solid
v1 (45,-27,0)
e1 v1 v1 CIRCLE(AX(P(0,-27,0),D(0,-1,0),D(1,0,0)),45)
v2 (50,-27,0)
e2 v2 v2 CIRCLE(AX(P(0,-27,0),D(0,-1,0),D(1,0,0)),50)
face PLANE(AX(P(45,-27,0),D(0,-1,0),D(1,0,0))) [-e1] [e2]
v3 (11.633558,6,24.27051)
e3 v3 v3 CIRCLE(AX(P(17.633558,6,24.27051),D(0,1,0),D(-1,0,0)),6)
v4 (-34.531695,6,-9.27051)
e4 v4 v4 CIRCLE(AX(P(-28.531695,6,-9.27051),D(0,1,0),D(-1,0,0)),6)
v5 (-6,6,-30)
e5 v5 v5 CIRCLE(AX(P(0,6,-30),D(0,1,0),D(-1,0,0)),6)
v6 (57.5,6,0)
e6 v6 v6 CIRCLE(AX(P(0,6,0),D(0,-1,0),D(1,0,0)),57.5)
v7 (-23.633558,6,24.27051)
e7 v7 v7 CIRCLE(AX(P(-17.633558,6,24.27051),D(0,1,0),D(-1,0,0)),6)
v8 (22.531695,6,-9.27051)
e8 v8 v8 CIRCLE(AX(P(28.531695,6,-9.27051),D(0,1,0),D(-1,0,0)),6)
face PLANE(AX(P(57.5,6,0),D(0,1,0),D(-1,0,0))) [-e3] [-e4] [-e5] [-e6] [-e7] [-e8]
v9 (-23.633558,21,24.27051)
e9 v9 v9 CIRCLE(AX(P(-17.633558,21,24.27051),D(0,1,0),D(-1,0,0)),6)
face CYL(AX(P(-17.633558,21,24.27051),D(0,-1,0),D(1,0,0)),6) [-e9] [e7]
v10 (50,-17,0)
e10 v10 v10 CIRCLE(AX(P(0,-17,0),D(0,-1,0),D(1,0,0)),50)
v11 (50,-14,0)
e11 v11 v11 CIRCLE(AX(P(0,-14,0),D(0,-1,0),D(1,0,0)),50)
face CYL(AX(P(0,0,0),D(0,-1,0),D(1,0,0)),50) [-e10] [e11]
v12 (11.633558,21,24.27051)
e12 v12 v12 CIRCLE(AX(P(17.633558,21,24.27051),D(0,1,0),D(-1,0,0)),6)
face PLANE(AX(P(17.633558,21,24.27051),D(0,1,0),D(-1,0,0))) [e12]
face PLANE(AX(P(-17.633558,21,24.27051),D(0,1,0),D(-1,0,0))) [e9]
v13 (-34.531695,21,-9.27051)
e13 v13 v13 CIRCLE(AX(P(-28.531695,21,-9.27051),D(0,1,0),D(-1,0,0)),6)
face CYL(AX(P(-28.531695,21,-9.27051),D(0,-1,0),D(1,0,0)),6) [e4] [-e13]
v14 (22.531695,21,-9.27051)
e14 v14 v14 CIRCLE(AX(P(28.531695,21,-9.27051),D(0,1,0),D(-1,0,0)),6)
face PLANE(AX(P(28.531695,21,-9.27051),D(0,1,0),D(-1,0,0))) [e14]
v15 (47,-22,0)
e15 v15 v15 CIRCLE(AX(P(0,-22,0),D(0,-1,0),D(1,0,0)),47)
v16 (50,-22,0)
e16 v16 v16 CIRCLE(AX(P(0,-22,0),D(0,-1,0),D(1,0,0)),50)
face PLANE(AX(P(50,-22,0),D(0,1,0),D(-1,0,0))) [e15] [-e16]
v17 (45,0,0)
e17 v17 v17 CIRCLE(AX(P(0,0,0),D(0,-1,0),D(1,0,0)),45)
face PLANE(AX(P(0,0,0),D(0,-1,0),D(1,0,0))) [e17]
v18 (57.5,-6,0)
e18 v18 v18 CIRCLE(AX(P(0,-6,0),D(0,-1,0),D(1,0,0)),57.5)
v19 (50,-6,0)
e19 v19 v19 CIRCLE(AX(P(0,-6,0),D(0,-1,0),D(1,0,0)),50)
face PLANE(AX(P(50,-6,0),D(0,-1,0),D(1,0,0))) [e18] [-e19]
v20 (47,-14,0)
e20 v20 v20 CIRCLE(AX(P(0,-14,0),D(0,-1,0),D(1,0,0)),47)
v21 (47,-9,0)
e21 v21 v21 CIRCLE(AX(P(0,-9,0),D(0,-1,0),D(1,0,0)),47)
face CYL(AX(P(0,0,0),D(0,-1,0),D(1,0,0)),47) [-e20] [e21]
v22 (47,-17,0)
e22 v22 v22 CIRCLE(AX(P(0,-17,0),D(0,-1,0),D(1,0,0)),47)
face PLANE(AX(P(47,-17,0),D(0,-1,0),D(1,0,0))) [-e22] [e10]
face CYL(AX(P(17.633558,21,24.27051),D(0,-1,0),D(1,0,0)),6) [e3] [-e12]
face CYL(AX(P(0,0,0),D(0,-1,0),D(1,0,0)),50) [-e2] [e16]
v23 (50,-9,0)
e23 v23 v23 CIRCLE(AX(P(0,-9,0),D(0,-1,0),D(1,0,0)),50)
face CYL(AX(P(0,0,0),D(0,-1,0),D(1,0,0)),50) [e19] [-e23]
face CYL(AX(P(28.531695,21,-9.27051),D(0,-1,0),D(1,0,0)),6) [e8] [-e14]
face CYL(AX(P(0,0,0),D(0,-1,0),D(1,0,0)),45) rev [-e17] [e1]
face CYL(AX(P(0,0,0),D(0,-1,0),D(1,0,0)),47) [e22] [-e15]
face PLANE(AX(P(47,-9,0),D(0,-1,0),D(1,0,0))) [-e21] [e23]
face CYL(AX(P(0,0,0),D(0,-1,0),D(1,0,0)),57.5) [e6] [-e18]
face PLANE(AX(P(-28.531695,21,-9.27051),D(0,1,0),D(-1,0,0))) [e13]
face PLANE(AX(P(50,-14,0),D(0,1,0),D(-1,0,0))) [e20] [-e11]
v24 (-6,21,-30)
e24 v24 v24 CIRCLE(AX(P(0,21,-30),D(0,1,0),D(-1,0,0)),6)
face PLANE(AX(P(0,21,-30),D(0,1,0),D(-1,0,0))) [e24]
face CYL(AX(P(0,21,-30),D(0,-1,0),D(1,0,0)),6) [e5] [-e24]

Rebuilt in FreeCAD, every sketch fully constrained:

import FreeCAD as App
import Part
import Sketcher


def add_polygon(sketch, points):
    """Adds a closed chain of lines whose ends are joined by coincident constraints."""
    first, n = sketch.GeometryCount, len(points)
    for a, b in zip(points, points[1:] + points[:1]):
        sketch.addGeometry(Part.LineSegment(App.Vector(*a, 0), App.Vector(*b, 0)), False)
    for i in range(n):
        sketch.addConstraint(Sketcher.Constraint("Coincident", first + i, 2, first + (i + 1) % n, 1))

doc = App.newDocument("Part")
body = doc.addObject("PartDesign::Body", "Body")

# Sketch on XY plane
sketch1 = body.newObject("Sketcher::SketchObject", "Sketch")
sketch1.AttachmentSupport = (doc.getObject("XY_Plane"), [""])
sketch1.MapMode = "FlatFace"
add_polygon(sketch1, [(0, 0), (45, 0), (45, -27), (50, -27), (50, -22), (47, -22), (47, -17), (50, -17), (50, -14), (47, -14), (47, -9), (50, -9), (50, -6), (57.5, -6), (57.5, 6), (0, 6)])  # lines 0-15
sketch1.addConstraint([
    Sketcher.Constraint("Horizontal", 0),
    Sketcher.Constraint("Vertical", 1),
    Sketcher.Constraint("Horizontal", 2),
    Sketcher.Constraint("Vertical", 3),
    Sketcher.Constraint("Horizontal", 4),
    Sketcher.Constraint("Vertical", 5),
    Sketcher.Constraint("Horizontal", 6),
    Sketcher.Constraint("Vertical", 7),
    Sketcher.Constraint("Horizontal", 8),
    Sketcher.Constraint("Vertical", 9),
    Sketcher.Constraint("Horizontal", 10),
    Sketcher.Constraint("Vertical", 11),
    Sketcher.Constraint("Horizontal", 12),
    Sketcher.Constraint("Vertical", 13),
    Sketcher.Constraint("Horizontal", 14),
    Sketcher.Constraint("Vertical", 15),
    Sketcher.Constraint("Coincident", 15, 2, -1, 1),
    Sketcher.Constraint("Vertical", 3, 2, 6, 2),
    Sketcher.Constraint("Vertical", 5, 2, 8, 2),
    Sketcher.Constraint("Vertical", 7, 2, 10, 2),
    Sketcher.Constraint("Equal", 2, 3),
    Sketcher.Constraint("Equal", 3, 5),
    Sketcher.Constraint("Equal", 10, 7),
    Sketcher.Constraint("Equal", 5, 9),
    Sketcher.Constraint("Equal", 7, 11),
    Sketcher.Constraint("DistanceX", 0, 1, 0, 2, 45.0),
    Sketcher.Constraint("DistanceX", 2, 1, 2, 2, 5.0),
    Sketcher.Constraint("DistanceX", 4, 2, 4, 1, 3.0),
    Sketcher.Constraint("DistanceY", 1, 2, 1, 1, 27.0),
    Sketcher.Constraint("DistanceY", 13, 1, 13, 2, 12.0),
    Sketcher.Constraint("DistanceX", 12, 1, 12, 2, 7.5),
])
revolution = body.newObject("PartDesign::Revolution", "Revolution")
revolution.Profile = sketch1
revolution.ReferenceAxis = (sketch1, ["V_Axis"])
revolution.Angle = 360

# Sketch on XZ plane
sketch2 = body.newObject("Sketcher::SketchObject", "Sketch001")
sketch2.AttachmentSupport = (doc.getObject("XZ_Plane"), [""])
sketch2.MapMode = "FlatFace"
sketch2.AttachmentOffset = App.Placement(App.Vector(0, 0, -6), App.Rotation())
sketch2.addGeometry([
    Part.Circle(App.Vector(0, -30, 0), App.Vector(0, 0, 1), 6),  # 0
    Part.Circle(App.Vector(29, -9, 0), App.Vector(0, 0, 1), 6),  # 1
    Part.Circle(App.Vector(18, 24, 0), App.Vector(0, 0, 1), 6),  # 2
    Part.Circle(App.Vector(-18, 24, 0), App.Vector(0, 0, 1), 6),  # 3
    Part.Circle(App.Vector(-29, -9, 0), App.Vector(0, 0, 1), 6),  # 4
], False)
sketch2.addConstraint([
    Sketcher.Constraint("Equal", 0, 1),
    Sketcher.Constraint("Equal", 1, 2),
    Sketcher.Constraint("Equal", 2, 3),
    Sketcher.Constraint("Equal", 3, 4),
    Sketcher.Constraint("Symmetric", 2, 3, 3, 3, -2),
    Sketcher.Constraint("Symmetric", 1, 3, 4, 3, -2),
    Sketcher.Constraint("PointOnObject", 0, 3, -2),
    Sketcher.Constraint("Diameter", 0, 12.0),
    Sketcher.Constraint("DistanceY", 0, 3, -1, 1, 30.0),
    Sketcher.Constraint("DistanceY", 1, 3, -1, 1, 9.27051),
    Sketcher.Constraint("DistanceY", -1, 1, 2, 3, 24.27051),
    Sketcher.Constraint("DistanceX", 4, 3, 1, 3, 57.063391),
    Sketcher.Constraint("DistanceX", -1, 1, 2, 3, 17.633558),
])
pad1 = body.newObject("PartDesign::Pad", "Pad")
pad1.Profile = sketch2
pad1.Length = 15
pad1.Reversed = True

doc.recompute()
